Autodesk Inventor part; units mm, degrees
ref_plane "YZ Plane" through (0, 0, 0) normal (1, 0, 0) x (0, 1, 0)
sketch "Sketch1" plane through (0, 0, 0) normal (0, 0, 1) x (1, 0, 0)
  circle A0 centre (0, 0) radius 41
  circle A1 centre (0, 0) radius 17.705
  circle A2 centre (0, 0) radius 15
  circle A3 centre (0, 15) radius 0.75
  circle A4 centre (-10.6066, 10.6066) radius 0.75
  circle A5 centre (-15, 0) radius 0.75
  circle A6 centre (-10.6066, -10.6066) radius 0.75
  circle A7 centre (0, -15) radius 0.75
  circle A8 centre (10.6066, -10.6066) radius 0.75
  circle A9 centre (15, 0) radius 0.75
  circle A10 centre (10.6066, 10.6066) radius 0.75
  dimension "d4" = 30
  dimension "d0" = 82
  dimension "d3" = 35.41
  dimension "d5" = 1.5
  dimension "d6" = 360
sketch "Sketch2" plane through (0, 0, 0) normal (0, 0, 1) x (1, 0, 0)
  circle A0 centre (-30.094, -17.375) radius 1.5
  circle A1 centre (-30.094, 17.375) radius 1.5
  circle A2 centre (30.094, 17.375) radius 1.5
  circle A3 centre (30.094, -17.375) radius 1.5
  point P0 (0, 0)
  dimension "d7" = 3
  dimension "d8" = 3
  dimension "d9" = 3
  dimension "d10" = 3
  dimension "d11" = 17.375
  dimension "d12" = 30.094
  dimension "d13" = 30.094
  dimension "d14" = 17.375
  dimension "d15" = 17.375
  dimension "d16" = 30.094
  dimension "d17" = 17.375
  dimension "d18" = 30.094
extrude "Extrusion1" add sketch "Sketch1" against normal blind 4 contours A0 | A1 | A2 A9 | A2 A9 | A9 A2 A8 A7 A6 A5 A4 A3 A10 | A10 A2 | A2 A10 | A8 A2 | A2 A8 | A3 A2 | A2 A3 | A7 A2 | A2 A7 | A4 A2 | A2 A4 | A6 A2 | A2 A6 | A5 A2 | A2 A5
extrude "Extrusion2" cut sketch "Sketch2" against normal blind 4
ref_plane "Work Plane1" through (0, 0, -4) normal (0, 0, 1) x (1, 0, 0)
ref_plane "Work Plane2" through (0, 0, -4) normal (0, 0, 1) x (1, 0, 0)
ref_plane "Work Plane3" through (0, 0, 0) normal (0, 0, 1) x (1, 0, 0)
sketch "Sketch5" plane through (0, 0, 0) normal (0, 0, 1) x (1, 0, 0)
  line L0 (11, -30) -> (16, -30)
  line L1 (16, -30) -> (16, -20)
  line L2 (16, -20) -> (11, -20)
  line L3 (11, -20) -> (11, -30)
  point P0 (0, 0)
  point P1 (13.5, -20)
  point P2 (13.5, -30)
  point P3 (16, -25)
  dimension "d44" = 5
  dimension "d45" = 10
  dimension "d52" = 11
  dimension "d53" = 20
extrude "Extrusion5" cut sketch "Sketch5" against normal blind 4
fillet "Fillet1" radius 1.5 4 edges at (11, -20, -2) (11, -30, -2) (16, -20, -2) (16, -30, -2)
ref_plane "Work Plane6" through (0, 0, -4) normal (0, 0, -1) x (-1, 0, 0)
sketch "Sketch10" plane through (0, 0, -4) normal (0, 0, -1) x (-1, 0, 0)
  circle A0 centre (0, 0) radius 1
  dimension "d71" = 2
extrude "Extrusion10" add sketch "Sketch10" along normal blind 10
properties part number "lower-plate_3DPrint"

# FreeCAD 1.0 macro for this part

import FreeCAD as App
import Part
import Sketcher

V = App.Vector


def edges_at(feature, points):
    """Names of the edges that pass closest to the given points."""
    edges = feature.Shape.Edges
    near = lambda p: min(range(len(edges)), key=lambda i: edges[i].distToShape(Part.Vertex(*p))[0])
    return sorted({f"Edge{near(p) + 1}" for p in points})


def add_polygon(sketch, points):
    """Adds a closed chain of lines whose ends are joined by coincident constraints."""
    first, n = sketch.GeometryCount, len(points)
    for a, b in zip(points, points[1:] + points[:1]):
        sketch.addGeometry(Part.LineSegment(App.Vector(*a, 0), App.Vector(*b, 0)), False)
    for i in range(n):
        sketch.addConstraint(Sketcher.Constraint("Coincident", first + i, 2, first + (i + 1) % n, 1))

doc = App.newDocument("Part")
body = doc.addObject("PartDesign::Body", "Body")

# Sketch on XY plane
sketch1 = body.newObject("Sketcher::SketchObject", "Sketch")
sketch1.AttachmentSupport = (doc.getObject("XY_Plane"), [""])
sketch1.MapMode = "FlatFace"
sketch1.addGeometry(Part.Circle(V(0, 0, 0), V(0, 0, 1), 41), False)
sketch1.addConstraint(Sketcher.Constraint("Coincident", 0, 3, -1, 1))
sketch1.addConstraint(Sketcher.Constraint("Diameter", 0, 82.0))
pad1 = body.newObject("PartDesign::Pad", "Pad")
pad1.Profile = sketch1
pad1.Length = 4
pad1.Reversed = True

# Sketch on XY plane
sketch2 = body.newObject("Sketcher::SketchObject", "Sketch001")
sketch2.AttachmentSupport = (doc.getObject("XY_Plane"), [""])
sketch2.MapMode = "FlatFace"
sketch2.addGeometry(Part.Circle(V(-30.094, -17.375, 0), V(0, 0, 1), 1.5), False)
sketch2.addGeometry(Part.Circle(V(-30.094, 17.375, 0), V(0, 0, 1), 1.5), False)
sketch2.addGeometry(Part.Circle(V(30.094, 17.375, 0), V(0, 0, 1), 1.5), False)
sketch2.addGeometry(Part.Circle(V(30.094, -17.375, 0), V(0, 0, 1), 1.5), False)
sketch2.addConstraint(Sketcher.Constraint("Equal", 0, 1))
sketch2.addConstraint(Sketcher.Constraint("Equal", 1, 2))
sketch2.addConstraint(Sketcher.Constraint("Equal", 2, 3))
sketch2.addConstraint(Sketcher.Constraint("Symmetric", 0, 3, 2, 3, -1, 1))
sketch2.addConstraint(Sketcher.Constraint("Symmetric", 1, 3, 3, 3, -1, 1))
sketch2.addConstraint(Sketcher.Constraint("Symmetric", 1, 3, 2, 3, -2))
sketch2.addConstraint(Sketcher.Constraint("Diameter", 0, 3.0))
sketch2.addConstraint(Sketcher.Constraint("DistanceX", 0, 3, -1, 1, 30.094))
sketch2.addConstraint(Sketcher.Constraint("DistanceY", 0, 3, -1, 1, 17.375))
pocket1 = body.newObject("PartDesign::Pocket", "Pocket")
pocket1.Profile = sketch2
pocket1.Length = 4

# Sketch on XY plane
sketch3 = body.newObject("Sketcher::SketchObject", "Sketch002")
sketch3.AttachmentSupport = (doc.getObject("XY_Plane"), [""])
sketch3.MapMode = "FlatFace"
add_polygon(sketch3, [(11, -20), (11, -30), (16, -30), (16, -20)])  # lines 0-3
sketch3.addConstraint(Sketcher.Constraint("Vertical", 0))
sketch3.addConstraint(Sketcher.Constraint("Horizontal", 1))
sketch3.addConstraint(Sketcher.Constraint("Vertical", 2))
sketch3.addConstraint(Sketcher.Constraint("Horizontal", 3))
sketch3.addConstraint(Sketcher.Constraint("DistanceX", 1, 1, 1, 2, 5.0))
sketch3.addConstraint(Sketcher.Constraint("DistanceY", 0, 2, 0, 1, 10.0))
sketch3.addConstraint(Sketcher.Constraint("DistanceX", -1, 1, 0, 2, 11.0))
sketch3.addConstraint(Sketcher.Constraint("DistanceY", 2, 2, -1, 1, 20.0))
pocket2 = body.newObject("PartDesign::Pocket", "Pocket001")
pocket2.Profile = sketch3
pocket2.Length = 4
doc.recompute()

fillet = body.newObject("PartDesign::Fillet", "Fillet")
fillet.Base = (pocket2, edges_at(pocket2, [
    (11, -20, -2),
    (11, -30, -2),
    (16, -20, -2),
    (16, -30, -2),
]))
fillet.Radius = 1.5

# Sketch on XY plane
sketch4 = body.newObject("Sketcher::SketchObject", "Sketch003")
sketch4.AttachmentSupport = (doc.getObject("XY_Plane"), [""])
sketch4.MapMode = "FlatFace"
sketch4.AttachmentOffset = App.Placement(V(0, 0, -4), App.Rotation())
sketch4.addGeometry(Part.Circle(V(0, 0, 0), V(0, 0, 1), 1), False)
sketch4.addConstraint(Sketcher.Constraint("Coincident", 0, 3, -1, 1))
sketch4.addConstraint(Sketcher.Constraint("Diameter", 0, 2.0))
pad2 = body.newObject("PartDesign::Pad", "Pad001")
pad2.Profile = sketch4
pad2.Length = 10
pad2.Reversed = True

doc.recompute()
